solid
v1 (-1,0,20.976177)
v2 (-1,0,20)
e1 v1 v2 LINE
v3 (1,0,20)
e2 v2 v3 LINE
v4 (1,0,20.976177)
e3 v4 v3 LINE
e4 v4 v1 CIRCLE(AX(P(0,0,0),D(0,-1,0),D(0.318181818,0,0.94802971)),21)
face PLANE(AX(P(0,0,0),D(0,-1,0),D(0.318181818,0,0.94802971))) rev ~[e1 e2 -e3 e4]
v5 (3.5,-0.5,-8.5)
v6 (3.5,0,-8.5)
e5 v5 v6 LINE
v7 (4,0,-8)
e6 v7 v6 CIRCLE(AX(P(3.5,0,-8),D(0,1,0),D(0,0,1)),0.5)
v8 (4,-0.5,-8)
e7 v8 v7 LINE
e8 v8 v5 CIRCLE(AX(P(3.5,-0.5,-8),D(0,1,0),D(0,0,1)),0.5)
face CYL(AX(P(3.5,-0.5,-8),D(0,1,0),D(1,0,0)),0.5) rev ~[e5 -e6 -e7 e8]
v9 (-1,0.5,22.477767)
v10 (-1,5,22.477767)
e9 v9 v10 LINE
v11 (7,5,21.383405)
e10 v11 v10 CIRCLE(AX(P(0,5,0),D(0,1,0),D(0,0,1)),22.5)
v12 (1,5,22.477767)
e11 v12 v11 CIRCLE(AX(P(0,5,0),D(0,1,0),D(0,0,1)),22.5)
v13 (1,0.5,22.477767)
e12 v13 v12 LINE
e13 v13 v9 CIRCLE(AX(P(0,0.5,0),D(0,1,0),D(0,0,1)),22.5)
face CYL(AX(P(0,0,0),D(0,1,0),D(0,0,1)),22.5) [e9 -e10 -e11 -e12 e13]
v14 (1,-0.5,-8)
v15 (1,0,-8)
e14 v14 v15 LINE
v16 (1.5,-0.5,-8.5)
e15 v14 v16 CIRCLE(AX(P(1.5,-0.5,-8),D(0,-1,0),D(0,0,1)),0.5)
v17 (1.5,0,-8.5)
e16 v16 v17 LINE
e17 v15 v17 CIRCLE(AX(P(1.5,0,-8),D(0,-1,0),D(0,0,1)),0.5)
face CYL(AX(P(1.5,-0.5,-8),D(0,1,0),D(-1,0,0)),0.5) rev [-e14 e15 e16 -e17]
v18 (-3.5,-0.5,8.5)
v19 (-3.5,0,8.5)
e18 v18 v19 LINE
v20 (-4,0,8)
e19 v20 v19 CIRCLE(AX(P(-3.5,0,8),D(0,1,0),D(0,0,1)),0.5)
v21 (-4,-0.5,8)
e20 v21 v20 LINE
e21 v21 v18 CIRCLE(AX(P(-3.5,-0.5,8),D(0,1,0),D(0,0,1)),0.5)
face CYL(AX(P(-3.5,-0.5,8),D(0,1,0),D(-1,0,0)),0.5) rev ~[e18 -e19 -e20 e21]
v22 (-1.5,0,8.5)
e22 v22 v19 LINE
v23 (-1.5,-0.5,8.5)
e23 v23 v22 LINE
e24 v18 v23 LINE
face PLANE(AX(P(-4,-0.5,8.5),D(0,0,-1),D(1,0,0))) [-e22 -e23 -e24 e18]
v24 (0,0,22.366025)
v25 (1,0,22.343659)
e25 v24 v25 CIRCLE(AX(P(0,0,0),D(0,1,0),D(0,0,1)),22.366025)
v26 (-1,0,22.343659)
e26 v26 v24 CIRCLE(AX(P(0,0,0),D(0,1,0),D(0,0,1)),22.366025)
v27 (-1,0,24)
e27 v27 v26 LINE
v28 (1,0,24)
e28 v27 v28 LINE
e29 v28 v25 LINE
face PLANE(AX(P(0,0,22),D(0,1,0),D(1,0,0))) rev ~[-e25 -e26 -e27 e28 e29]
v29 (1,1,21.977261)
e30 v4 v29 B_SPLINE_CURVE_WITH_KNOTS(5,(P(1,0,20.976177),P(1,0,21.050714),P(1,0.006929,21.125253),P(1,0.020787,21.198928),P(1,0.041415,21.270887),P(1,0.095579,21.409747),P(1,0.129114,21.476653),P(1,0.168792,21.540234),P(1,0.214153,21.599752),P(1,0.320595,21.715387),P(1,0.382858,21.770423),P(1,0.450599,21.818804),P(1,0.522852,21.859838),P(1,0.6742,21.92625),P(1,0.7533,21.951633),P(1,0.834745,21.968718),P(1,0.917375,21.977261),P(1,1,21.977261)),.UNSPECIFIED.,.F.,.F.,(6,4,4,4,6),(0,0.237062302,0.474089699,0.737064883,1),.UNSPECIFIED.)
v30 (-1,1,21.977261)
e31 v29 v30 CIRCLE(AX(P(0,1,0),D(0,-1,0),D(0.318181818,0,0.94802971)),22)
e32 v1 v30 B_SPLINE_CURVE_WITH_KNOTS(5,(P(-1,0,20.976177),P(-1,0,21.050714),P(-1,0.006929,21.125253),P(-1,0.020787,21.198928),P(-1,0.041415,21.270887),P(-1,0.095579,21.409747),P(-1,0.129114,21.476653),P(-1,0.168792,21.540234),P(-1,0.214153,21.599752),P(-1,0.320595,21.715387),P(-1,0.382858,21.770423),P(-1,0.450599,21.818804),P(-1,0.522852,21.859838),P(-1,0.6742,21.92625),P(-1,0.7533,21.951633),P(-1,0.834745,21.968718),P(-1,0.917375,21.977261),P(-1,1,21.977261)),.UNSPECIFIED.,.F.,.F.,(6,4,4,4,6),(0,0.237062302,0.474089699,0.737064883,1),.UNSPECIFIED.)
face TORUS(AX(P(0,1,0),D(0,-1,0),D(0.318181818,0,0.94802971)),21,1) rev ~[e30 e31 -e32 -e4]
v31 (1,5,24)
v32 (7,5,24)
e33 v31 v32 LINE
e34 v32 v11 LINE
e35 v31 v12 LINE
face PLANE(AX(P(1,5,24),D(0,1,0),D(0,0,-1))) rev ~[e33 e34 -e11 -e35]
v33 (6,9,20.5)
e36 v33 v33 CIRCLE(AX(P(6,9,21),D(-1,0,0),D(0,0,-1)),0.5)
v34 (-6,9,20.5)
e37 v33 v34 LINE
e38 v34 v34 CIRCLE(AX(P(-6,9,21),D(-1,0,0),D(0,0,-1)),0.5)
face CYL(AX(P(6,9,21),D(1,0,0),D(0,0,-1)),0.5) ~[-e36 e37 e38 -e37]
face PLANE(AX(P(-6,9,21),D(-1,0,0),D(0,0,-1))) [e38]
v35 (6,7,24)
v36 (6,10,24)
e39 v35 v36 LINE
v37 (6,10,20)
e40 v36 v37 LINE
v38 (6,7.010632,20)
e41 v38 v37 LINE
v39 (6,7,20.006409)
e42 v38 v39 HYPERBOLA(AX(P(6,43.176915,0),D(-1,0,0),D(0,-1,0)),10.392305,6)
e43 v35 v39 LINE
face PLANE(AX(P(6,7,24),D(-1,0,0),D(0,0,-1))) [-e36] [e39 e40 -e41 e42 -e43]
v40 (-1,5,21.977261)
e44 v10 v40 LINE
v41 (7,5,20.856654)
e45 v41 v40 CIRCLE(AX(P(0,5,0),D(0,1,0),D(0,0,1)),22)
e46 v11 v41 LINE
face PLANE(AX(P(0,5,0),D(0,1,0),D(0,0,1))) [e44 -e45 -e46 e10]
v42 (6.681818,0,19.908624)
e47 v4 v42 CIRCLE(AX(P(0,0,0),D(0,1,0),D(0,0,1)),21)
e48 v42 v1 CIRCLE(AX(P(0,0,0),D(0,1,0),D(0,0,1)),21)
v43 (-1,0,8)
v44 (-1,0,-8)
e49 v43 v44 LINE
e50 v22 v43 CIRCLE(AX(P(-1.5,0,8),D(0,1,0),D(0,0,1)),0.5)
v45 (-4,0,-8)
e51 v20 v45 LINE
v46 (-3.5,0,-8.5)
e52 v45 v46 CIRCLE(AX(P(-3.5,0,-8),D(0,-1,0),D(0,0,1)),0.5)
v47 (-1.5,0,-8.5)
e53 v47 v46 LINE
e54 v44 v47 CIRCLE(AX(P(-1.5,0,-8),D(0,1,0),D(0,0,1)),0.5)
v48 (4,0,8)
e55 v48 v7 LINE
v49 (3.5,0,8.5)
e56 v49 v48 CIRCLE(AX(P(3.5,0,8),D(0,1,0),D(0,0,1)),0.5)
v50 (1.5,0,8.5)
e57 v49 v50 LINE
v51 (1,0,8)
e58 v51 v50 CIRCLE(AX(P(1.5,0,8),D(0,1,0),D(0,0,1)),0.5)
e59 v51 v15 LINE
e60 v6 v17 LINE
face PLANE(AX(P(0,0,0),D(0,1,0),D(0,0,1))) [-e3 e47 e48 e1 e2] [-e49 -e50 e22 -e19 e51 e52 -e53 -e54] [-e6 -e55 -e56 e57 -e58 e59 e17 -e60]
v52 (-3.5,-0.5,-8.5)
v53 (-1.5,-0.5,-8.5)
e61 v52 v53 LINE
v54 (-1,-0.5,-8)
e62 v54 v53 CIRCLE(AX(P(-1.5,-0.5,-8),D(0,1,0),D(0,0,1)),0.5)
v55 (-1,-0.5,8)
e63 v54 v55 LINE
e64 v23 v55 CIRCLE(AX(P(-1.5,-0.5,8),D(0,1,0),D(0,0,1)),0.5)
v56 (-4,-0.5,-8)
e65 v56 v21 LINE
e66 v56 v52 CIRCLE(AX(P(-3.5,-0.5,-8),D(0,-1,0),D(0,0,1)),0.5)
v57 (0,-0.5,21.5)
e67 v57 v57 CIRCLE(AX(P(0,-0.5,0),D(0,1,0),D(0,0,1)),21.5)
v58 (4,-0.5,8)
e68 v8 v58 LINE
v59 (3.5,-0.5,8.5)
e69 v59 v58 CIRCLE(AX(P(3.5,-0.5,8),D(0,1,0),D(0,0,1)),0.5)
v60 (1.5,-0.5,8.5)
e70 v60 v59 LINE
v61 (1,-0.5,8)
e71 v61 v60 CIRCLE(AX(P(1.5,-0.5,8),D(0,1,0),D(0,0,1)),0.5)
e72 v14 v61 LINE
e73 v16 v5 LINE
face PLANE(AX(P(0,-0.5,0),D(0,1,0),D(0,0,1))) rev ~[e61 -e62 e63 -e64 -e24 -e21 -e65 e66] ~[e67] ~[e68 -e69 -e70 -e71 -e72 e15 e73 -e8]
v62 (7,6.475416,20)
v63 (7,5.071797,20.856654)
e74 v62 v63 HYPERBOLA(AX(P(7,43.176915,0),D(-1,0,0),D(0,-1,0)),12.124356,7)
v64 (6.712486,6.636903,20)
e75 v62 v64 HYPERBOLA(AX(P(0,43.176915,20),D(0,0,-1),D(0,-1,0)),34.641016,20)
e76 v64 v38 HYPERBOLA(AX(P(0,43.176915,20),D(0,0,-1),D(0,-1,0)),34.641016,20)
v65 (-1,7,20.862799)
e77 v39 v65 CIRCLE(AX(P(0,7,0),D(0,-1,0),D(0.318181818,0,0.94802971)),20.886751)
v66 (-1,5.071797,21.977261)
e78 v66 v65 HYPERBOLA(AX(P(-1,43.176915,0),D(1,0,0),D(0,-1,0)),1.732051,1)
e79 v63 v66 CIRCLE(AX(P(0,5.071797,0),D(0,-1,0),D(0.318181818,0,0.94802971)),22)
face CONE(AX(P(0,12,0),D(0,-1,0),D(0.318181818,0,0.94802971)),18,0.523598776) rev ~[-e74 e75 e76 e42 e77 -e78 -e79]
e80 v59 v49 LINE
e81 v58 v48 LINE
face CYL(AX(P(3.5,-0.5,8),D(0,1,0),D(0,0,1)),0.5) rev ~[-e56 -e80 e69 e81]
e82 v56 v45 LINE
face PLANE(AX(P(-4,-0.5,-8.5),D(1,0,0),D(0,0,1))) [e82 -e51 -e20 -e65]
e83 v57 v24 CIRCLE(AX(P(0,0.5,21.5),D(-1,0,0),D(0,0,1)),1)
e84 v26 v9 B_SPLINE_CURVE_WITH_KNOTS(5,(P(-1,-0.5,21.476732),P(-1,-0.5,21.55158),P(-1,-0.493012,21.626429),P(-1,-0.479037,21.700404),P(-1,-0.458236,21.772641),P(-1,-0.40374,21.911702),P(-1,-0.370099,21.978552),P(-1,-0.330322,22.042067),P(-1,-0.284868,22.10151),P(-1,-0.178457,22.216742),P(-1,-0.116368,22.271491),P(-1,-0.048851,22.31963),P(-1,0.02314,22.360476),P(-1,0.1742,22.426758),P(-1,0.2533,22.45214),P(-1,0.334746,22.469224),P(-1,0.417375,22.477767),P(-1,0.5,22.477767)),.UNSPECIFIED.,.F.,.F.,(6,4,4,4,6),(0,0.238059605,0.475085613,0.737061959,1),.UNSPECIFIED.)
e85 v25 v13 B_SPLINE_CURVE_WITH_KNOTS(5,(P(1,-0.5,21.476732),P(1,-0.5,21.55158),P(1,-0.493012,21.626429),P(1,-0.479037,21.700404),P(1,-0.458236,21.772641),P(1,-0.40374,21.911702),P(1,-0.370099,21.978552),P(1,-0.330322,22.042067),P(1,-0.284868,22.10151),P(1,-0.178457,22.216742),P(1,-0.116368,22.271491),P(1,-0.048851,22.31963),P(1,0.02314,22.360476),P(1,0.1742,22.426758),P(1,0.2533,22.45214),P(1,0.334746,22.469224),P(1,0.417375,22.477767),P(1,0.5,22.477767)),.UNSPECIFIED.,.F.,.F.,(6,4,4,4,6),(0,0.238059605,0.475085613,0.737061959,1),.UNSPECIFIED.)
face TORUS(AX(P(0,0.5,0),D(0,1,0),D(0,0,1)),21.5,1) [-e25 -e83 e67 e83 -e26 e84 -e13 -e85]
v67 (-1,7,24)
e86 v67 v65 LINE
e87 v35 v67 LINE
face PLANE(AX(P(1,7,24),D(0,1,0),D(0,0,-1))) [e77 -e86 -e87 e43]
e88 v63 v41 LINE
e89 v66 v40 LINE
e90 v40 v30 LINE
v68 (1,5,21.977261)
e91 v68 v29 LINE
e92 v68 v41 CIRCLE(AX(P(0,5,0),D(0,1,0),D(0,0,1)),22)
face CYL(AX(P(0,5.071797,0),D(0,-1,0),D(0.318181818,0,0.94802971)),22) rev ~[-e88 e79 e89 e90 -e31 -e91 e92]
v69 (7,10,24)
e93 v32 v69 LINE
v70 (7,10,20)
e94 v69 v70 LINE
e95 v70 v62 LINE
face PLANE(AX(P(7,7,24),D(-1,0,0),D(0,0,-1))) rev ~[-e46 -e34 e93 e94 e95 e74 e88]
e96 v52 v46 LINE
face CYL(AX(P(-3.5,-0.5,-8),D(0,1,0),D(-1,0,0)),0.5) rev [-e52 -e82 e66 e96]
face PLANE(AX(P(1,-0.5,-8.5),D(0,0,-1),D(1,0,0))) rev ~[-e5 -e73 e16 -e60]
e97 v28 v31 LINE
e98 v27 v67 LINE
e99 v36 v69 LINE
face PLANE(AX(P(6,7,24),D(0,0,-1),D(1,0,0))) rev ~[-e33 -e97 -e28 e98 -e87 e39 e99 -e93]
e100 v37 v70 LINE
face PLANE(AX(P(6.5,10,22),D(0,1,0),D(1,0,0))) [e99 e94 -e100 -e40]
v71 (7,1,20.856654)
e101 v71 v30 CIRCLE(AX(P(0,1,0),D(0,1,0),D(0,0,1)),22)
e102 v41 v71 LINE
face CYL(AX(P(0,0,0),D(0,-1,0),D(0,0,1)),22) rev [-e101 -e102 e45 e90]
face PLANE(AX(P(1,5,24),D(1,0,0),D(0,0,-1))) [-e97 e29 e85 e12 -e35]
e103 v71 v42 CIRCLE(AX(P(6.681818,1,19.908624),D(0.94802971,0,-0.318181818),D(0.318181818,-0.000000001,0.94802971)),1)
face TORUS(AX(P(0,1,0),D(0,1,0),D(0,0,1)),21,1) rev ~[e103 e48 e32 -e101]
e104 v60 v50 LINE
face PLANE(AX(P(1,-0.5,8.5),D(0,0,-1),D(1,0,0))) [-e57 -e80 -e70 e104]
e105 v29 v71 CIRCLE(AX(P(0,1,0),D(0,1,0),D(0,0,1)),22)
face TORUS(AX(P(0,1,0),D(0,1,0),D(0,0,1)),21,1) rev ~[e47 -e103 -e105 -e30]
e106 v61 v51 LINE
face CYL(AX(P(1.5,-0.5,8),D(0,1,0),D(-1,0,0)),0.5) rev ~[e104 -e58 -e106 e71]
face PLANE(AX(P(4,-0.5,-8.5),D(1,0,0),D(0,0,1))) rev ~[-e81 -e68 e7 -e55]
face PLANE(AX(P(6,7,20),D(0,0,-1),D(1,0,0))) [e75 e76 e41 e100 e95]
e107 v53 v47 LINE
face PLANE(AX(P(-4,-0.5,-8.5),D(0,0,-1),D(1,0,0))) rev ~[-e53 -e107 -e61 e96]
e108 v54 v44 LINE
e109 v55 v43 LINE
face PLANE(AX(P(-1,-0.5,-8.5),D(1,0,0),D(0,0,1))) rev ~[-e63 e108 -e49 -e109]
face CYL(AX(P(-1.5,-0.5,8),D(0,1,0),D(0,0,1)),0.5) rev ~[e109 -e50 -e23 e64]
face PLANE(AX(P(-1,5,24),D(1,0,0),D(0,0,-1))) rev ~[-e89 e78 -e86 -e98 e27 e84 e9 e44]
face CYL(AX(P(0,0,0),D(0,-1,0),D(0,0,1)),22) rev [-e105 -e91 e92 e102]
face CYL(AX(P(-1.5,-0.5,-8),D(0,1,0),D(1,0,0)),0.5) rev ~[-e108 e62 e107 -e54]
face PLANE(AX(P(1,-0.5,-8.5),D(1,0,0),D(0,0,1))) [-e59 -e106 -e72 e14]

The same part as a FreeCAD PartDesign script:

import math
import FreeCAD as App
import Part
import Sketcher
from FreeCAD import Vector
Q = App.Units.Quantity


def edges_at(feature, points):
    """Names of the edges that pass closest to the given points."""
    edges = feature.Shape.Edges
    near = lambda p: min(range(len(edges)), key=lambda i: edges[i].distToShape(Part.Vertex(*p))[0])
    return sorted({f"Edge{near(p) + 1}" for p in points})

doc = App.newDocument("Part")
body = doc.addObject("PartDesign::Body", "Body")

sketch1 = doc.addObject("Sketcher::SketchObject", "Sketch")
body.addObject(sketch1)
sketch1.AttachmentSupport = (doc.XZ_Plane, [""])
sketch1.MapMode = "FlatFace"
sketch1.addGeometry(Part.Circle(Vector(0, 0, 0), Vector(0, 0, 1), 22.5), False)
sketch1.addGeometry(Part.Circle(Vector(0, 0, 0), Vector(0, 0, 1), 22), False)
sketch1.addConstraint(Sketcher.Constraint("Coincident", 0, 3, -1, 1))
sketch1.addConstraint(Sketcher.Constraint("Coincident", 1, 3, -1, 1))
sketch1.addConstraint(Sketcher.Constraint("Diameter", 0, 45.0))
sketch1.addConstraint(Sketcher.Constraint("Diameter", 1, 44.0))
pad1 = doc.addObject("PartDesign::Pad", "Pad")
body.addObject(pad1)
pad1.Profile = sketch1
pad1.Length = 5
pad1.Reversed = True

sketch2 = doc.addObject("Sketcher::SketchObject", "Sketch001")
body.addObject(sketch2)
sketch2.AttachmentSupport = (doc.XZ_Plane, [""])
sketch2.MapMode = "FlatFace"
sketch2.addGeometry(Part.Circle(Vector(0, 0, 0), Vector(0, 0, 1), 22.5), False)
sketch2.addConstraint(Sketcher.Constraint("Coincident", 0, 3, -1, 1))
sketch2.addConstraint(Sketcher.Constraint("Diameter", 0, 45.0))
pad2 = doc.addObject("PartDesign::Pad", "Pad001")
body.addObject(pad2)
pad2.Profile = sketch2
pad2.Length = 0.5

sketch3 = doc.addObject("Sketcher::SketchObject", "Sketch002")
body.addObject(sketch3)
sketch3.AttachmentSupport = (doc.XZ_Plane, [""])
sketch3.MapMode = "FlatFace"
sketch3.AttachmentOffset = App.Placement(Vector(0, 0, 0.5), App.Rotation())
sketch3.addGeometry(Part.LineSegment(Vector(1, 8.5, 0), Vector(1, -8.5, 0)), False)
sketch3.addGeometry(Part.LineSegment(Vector(1, -8.5, 0), Vector(4, -8.5, 0)), False)
sketch3.addGeometry(Part.LineSegment(Vector(4, -8.5, 0), Vector(4, 8.5, 0)), False)
sketch3.addGeometry(Part.LineSegment(Vector(4, 8.5, 0), Vector(1, 8.5, 0)), False)
sketch3.addGeometry(Part.LineSegment(Vector(-4, 8.5, 0), Vector(-4, -8.5, 0)), False)
sketch3.addGeometry(Part.LineSegment(Vector(-4, -8.5, 0), Vector(-1, -8.5, 0)), False)
sketch3.addGeometry(Part.LineSegment(Vector(-1, -8.5, 0), Vector(-1, 8.5, 0)), False)
sketch3.addGeometry(Part.LineSegment(Vector(-1, 8.5, 0), Vector(-4, 8.5, 0)), False)
sketch3.addConstraint(Sketcher.Constraint("Coincident", 0, 2, 1, 1))
sketch3.addConstraint(Sketcher.Constraint("Coincident", 1, 2, 2, 1))
sketch3.addConstraint(Sketcher.Constraint("Coincident", 2, 2, 3, 1))
sketch3.addConstraint(Sketcher.Constraint("Coincident", 3, 2, 0, 1))
sketch3.addConstraint(Sketcher.Constraint("Coincident", 4, 2, 5, 1))
sketch3.addConstraint(Sketcher.Constraint("Coincident", 5, 2, 6, 1))
sketch3.addConstraint(Sketcher.Constraint("Coincident", 6, 2, 7, 1))
sketch3.addConstraint(Sketcher.Constraint("Coincident", 7, 2, 4, 1))
sketch3.addConstraint(Sketcher.Constraint("Vertical", 0))
sketch3.addConstraint(Sketcher.Constraint("Horizontal", 1))
sketch3.addConstraint(Sketcher.Constraint("Vertical", 2))
sketch3.addConstraint(Sketcher.Constraint("Horizontal", 3))
sketch3.addConstraint(Sketcher.Constraint("Vertical", 4))
sketch3.addConstraint(Sketcher.Constraint("Horizontal", 5))
sketch3.addConstraint(Sketcher.Constraint("Vertical", 6))
sketch3.addConstraint(Sketcher.Constraint("Horizontal", 7))
sketch3.addConstraint(Sketcher.Constraint("Symmetric", 2, 2, 4, 2, -1, 1))
sketch3.addConstraint(Sketcher.Constraint("Symmetric", 0, 2, 6, 2, -1, 1))
sketch3.addConstraint(Sketcher.Constraint("Horizontal", 1, 2, 4, 2))
sketch3.addConstraint(Sketcher.Constraint("DistanceX", 1, 1, 1, 2, 3.0))
sketch3.addConstraint(Sketcher.Constraint("DistanceY", 0, 2, 0, 1, 17.0))
sketch3.addConstraint(Sketcher.Constraint("DistanceX", -1, 1, 0, 2, 1.0))
pocket1 = doc.addObject("PartDesign::Pocket", "Pocket")
body.addObject(pocket1)
pocket1.Profile = sketch3
pocket1.Type = "ThroughAll"
pocket1.Midplane = True
doc.recompute()

fillet = doc.addObject("PartDesign::Fillet", "Fillet")
body.addObject(fillet)
fillet.Base = (pocket1, edges_at(pocket1, [
    (-4, -0.25, 8.5),
    (-4, -0.25, -8.5),
    (-1, -0.25, -8.5),
    (-1, -0.25, 8.5),
    (1, -0.25, 8.5),
    (1, -0.25, -8.5),
    (4, -0.25, -8.5),
    (4, -0.25, 8.5),
]))
fillet.Radius = 0.5
doc.recompute()

fillet2 = doc.addObject("PartDesign::Fillet", "Fillet001")
body.addObject(fillet2)
fillet2.Base = (fillet, edges_at(fillet, [(0, 0, -22), (0, -0.5, -22.5)]))
fillet2.Radius = 1

sketch4 = doc.addObject("Sketcher::SketchObject", "Sketch003")
body.addObject(sketch4)
sketch4.AttachmentSupport = (doc.XZ_Plane, [""])
sketch4.MapMode = "FlatFace"
sketch4.AttachmentOffset = App.Placement(Vector(0, 0, -5), App.Rotation())
sketch4.addGeometry(Part.LineSegment(Vector(-1, 20, 0), Vector(-1, 24, 0)), False)
sketch4.addGeometry(Part.LineSegment(Vector(-1, 24, 0), Vector(1, 24, 0)), False)
sketch4.addGeometry(Part.LineSegment(Vector(1, 24, 0), Vector(1, 20, 0)), False)
sketch4.addGeometry(Part.LineSegment(Vector(1, 20, 0), Vector(-1, 20, 0)), False)
sketch4.addConstraint(Sketcher.Constraint("Coincident", 0, 2, 1, 1))
sketch4.addConstraint(Sketcher.Constraint("Coincident", 1, 2, 2, 1))
sketch4.addConstraint(Sketcher.Constraint("Coincident", 2, 2, 3, 1))
sketch4.addConstraint(Sketcher.Constraint("Coincident", 3, 2, 0, 1))
sketch4.addConstraint(Sketcher.Constraint("Vertical", 0))
sketch4.addConstraint(Sketcher.Constraint("Horizontal", 1))
sketch4.addConstraint(Sketcher.Constraint("Vertical", 2))
sketch4.addConstraint(Sketcher.Constraint("Horizontal", 3))
sketch4.addConstraint(Sketcher.Constraint("DistanceX", 1, 1, 1, 2, 2.0))
sketch4.addConstraint(Sketcher.Constraint("DistanceY", 0, 1, 0, 2, 4.0))
sketch4.addConstraint(Sketcher.Constraint("DistanceX", 0, 2, -1, 1, 1.0))
sketch4.addConstraint(Sketcher.Constraint("DistanceY", -1, 1, 0, 2, 24.0))
pad3 = doc.addObject("PartDesign::Pad", "Pad002")
body.addObject(pad3)
pad3.Profile = sketch4
pad3.Type = "TwoLengths"
pad3.Length = 2
pad3.Length2 = 5
pad3.Reversed = True

sketch5 = doc.addObject("Sketcher::SketchObject", "Sketch004")
body.addObject(sketch5)
sketch5.AttachmentSupport = (doc.YZ_Plane, [""])
sketch5.MapMode = "FlatFace"
sketch5.AttachmentOffset = App.Placement(Vector(0, 0, 1), App.Rotation())
sketch5.addGeometry(Part.LineSegment(Vector(7, 24, 0), Vector(5, 24, 0)), False)
sketch5.addGeometry(Part.LineSegment(Vector(5, 24, 0), Vector(5, 20, 0)), False)
sketch5.addGeometry(Part.LineSegment(Vector(5, 20, 0), Vector(7, 20, 0)), False)
sketch5.addGeometry(Part.LineSegment(Vector(7, 20, 0), Vector(7, 24, 0)), False)
sketch5.addConstraint(Sketcher.Constraint("Coincident", 0, 2, 1, 1))
sketch5.addConstraint(Sketcher.Constraint("Coincident", 1, 2, 2, 1))
sketch5.addConstraint(Sketcher.Constraint("Coincident", 2, 2, 3, 1))
sketch5.addConstraint(Sketcher.Constraint("Coincident", 3, 2, 0, 1))
sketch5.addConstraint(Sketcher.Constraint("Horizontal", 0))
sketch5.addConstraint(Sketcher.Constraint("Vertical", 1))
sketch5.addConstraint(Sketcher.Constraint("Horizontal", 2))
sketch5.addConstraint(Sketcher.Constraint("Vertical", 3))
sketch5.addConstraint(Sketcher.Constraint("DistanceX", 0, 2, 0, 1, 2.0))
sketch5.addConstraint(Sketcher.Constraint("DistanceY", 1, 2, 1, 1, 4.0))
sketch5.addConstraint(Sketcher.Constraint("DistanceX", -1, 1, 0, 2, 5.0))
sketch5.addConstraint(Sketcher.Constraint("DistanceY", -1, 1, 0, 2, 24.0))
pad4 = doc.addObject("PartDesign::Pad", "Pad003")
body.addObject(pad4)
pad4.Profile = sketch5
pad4.Length = 6

sketch6 = doc.addObject("Sketcher::SketchObject", "Sketch005")
body.addObject(sketch6)
sketch6.AttachmentSupport = (doc.XZ_Plane, [""])
sketch6.MapMode = "FlatFace"
sketch6.AttachmentOffset = App.Placement(Vector(0, 0, -7), App.Rotation())
sketch6.addGeometry(Part.LineSegment(Vector(6, 20, 0), Vector(6, 24, 0)), False)
sketch6.addGeometry(Part.LineSegment(Vector(6, 24, 0), Vector(7, 24, 0)), False)
sketch6.addGeometry(Part.LineSegment(Vector(7, 24, 0), Vector(7, 20, 0)), False)
sketch6.addGeometry(Part.LineSegment(Vector(7, 20, 0), Vector(6, 20, 0)), False)
sketch6.addConstraint(Sketcher.Constraint("Coincident", 0, 2, 1, 1))
sketch6.addConstraint(Sketcher.Constraint("Coincident", 1, 2, 2, 1))
sketch6.addConstraint(Sketcher.Constraint("Coincident", 2, 2, 3, 1))
sketch6.addConstraint(Sketcher.Constraint("Coincident", 3, 2, 0, 1))
sketch6.addConstraint(Sketcher.Constraint("Vertical", 0))
sketch6.addConstraint(Sketcher.Constraint("Horizontal", 1))
sketch6.addConstraint(Sketcher.Constraint("Vertical", 2))
sketch6.addConstraint(Sketcher.Constraint("Horizontal", 3))
sketch6.addConstraint(Sketcher.Constraint("DistanceX", 1, 1, 1, 2, 1.0))
sketch6.addConstraint(Sketcher.Constraint("DistanceY", 0, 1, 0, 2, 4.0))
sketch6.addConstraint(Sketcher.Constraint("DistanceX", -1, 1, 0, 2, 6.0))
sketch6.addConstraint(Sketcher.Constraint("DistanceY", -1, 1, 0, 2, 24.0))
pad5 = doc.addObject("PartDesign::Pad", "Pad004")
body.addObject(pad5)
pad5.Profile = sketch6
pad5.Length = 3
pad5.Reversed = True

sketch7 = doc.addObject("Sketcher::SketchObject", "Sketch006")
body.addObject(sketch7)
sketch7.AttachmentSupport = (doc.YZ_Plane, [""])
sketch7.MapMode = "FlatFace"
sketch7.AttachmentOffset = App.Placement(Vector(0, 0, 6), App.Rotation())
sketch7.addGeometry(Part.Circle(Vector(9, 21, 0), Vector(0, 0, 1), 0.5), False)
sketch7.addConstraint(Sketcher.Constraint("Diameter", 0, 1.0))
sketch7.addConstraint(Sketcher.Constraint("DistanceX", -1, 1, 0, 3, 9.0))
sketch7.addConstraint(Sketcher.Constraint("DistanceY", -1, 1, 0, 3, 21.0))
pad6 = doc.addObject("PartDesign::Pad", "Pad005")
body.addObject(pad6)
pad6.Profile = sketch7
pad6.Length = 12
pad6.Reversed = True

sketch8 = doc.addObject("Sketcher::SketchObject", "Sketch007")
body.addObject(sketch8)
sketch8.AttachmentSupport = (doc.YZ_Plane, [""])
sketch8.MapMode = "FlatFace"
sketch8.addGeometry(Part.LineSegment(Vector(12, 18, 0), Vector(5.071797, 22, 0)), False)
sketch8.addGeometry(Part.LineSegment(Vector(5.071797, 22, 0), Vector(1, 22, 0)), False)
sketch8.addGeometry(Part.ArcOfCircle(Part.Circle(Vector(1, 21, 0), Vector(0, 0, 1), 1), math.radians(90), math.radians(180)), False)
sketch8.addGeometry(Part.LineSegment(Vector(0, 21, 0), Vector(0, 0, 0)), False)
sketch8.addGeometry(Part.LineSegment(Vector(0, 0, 0), Vector(12, 0, 0)), False)
sketch8.addGeometry(Part.LineSegment(Vector(12, 0, 0), Vector(12, 18, 0)), False)
sketch8.addConstraint(Sketcher.Constraint("Coincident", 0, 2, 1, 1))
sketch8.addConstraint(Sketcher.Constraint("Tangent", 1, 2, 2, 1))
sketch8.addConstraint(Sketcher.Constraint("Tangent", 2, 2, 3, 1))
sketch8.addConstraint(Sketcher.Constraint("Coincident", 3, 2, 4, 1))
sketch8.addConstraint(Sketcher.Constraint("Coincident", 4, 2, 5, 1))
sketch8.addConstraint(Sketcher.Constraint("Coincident", 5, 2, 0, 1))
sketch8.addConstraint(Sketcher.Constraint("Horizontal", 1))
sketch8.addConstraint(Sketcher.Constraint("Vertical", 3))
sketch8.addConstraint(Sketcher.Constraint("Horizontal", 4))
sketch8.addConstraint(Sketcher.Constraint("Vertical", 5))
sketch8.addConstraint(Sketcher.Constraint("Coincident", 3, 2, -1, 1))
sketch8.addConstraint(Sketcher.Constraint("Radius", 2, 1.0))
sketch8.addConstraint(Sketcher.Constraint("DistanceX", 4, 1, 4, 2, 12.0))
sketch8.addConstraint(Sketcher.Constraint("DistanceY", 3, 2, 3, 1, 21.0))
sketch8.addConstraint(Sketcher.Constraint("DistanceY", 5, 1, 5, 2, 18.0))
sketch8.addConstraint(Sketcher.Constraint("Angle", 0, Q("150 deg")))
groove = doc.addObject("PartDesign::Groove", "Groove")
body.addObject(groove)
groove.Profile = sketch8
groove.ReferenceAxis = (sketch8, ["H_Axis"])
groove.Angle = 360

doc.recompute()
